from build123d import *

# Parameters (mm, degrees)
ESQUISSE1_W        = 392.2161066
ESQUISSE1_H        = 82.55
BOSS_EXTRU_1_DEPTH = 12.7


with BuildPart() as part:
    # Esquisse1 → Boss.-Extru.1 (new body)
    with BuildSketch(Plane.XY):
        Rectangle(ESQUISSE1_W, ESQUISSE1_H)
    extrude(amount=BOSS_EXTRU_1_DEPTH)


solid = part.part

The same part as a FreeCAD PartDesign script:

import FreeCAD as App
import Part
import Sketcher
from FreeCAD import Vector
Q = App.Units.Quantity

doc = App.newDocument("Part")
body = doc.addObject("PartDesign::Body", "Body")

# Sketch on XY plane
sketch1 = body.newObject("Sketcher::SketchObject", "Sketch")
sketch1.AttachmentSupport = (doc.getObject("XY_Plane"), [""])
sketch1.MapMode = "FlatFace"
sketch1.addGeometry(Part.LineSegment(Vector(-196, 41, 0), Vector(-196, -41, 0)), False)
sketch1.addGeometry(Part.LineSegment(Vector(-196, -41, 0), Vector(196, -41, 0)), False)
sketch1.addGeometry(Part.LineSegment(Vector(196, -41, 0), Vector(196, 41, 0)), False)
sketch1.addGeometry(Part.LineSegment(Vector(196, 41, 0), Vector(-196, 41, 0)), False)
sketch1.addConstraint(Sketcher.Constraint("Coincident", 0, 2, 1, 1))
sketch1.addConstraint(Sketcher.Constraint("Coincident", 1, 2, 2, 1))
sketch1.addConstraint(Sketcher.Constraint("Coincident", 2, 2, 3, 1))
sketch1.addConstraint(Sketcher.Constraint("Coincident", 3, 2, 0, 1))
sketch1.addConstraint(Sketcher.Constraint("Vertical", 0))
sketch1.addConstraint(Sketcher.Constraint("Horizontal", 1))
sketch1.addConstraint(Sketcher.Constraint("Vertical", 2))
sketch1.addConstraint(Sketcher.Constraint("Horizontal", 3))
sketch1.addConstraint(Sketcher.Constraint("Symmetric", 0, 2, 2, 2, -1, 1))
sketch1.addConstraint(Sketcher.Constraint("DistanceY", 0, 2, 0, 1, Q("3.25 in")))
sketch1.addConstraint(Sketcher.Constraint("DistanceX", 1, 1, 1, 2, Q("392.216107 mm")))
pad1 = body.newObject("PartDesign::Pad", "Pad")
pad1.Profile = sketch1
pad1.Length = Q("0.5 in")

doc.recompute()
